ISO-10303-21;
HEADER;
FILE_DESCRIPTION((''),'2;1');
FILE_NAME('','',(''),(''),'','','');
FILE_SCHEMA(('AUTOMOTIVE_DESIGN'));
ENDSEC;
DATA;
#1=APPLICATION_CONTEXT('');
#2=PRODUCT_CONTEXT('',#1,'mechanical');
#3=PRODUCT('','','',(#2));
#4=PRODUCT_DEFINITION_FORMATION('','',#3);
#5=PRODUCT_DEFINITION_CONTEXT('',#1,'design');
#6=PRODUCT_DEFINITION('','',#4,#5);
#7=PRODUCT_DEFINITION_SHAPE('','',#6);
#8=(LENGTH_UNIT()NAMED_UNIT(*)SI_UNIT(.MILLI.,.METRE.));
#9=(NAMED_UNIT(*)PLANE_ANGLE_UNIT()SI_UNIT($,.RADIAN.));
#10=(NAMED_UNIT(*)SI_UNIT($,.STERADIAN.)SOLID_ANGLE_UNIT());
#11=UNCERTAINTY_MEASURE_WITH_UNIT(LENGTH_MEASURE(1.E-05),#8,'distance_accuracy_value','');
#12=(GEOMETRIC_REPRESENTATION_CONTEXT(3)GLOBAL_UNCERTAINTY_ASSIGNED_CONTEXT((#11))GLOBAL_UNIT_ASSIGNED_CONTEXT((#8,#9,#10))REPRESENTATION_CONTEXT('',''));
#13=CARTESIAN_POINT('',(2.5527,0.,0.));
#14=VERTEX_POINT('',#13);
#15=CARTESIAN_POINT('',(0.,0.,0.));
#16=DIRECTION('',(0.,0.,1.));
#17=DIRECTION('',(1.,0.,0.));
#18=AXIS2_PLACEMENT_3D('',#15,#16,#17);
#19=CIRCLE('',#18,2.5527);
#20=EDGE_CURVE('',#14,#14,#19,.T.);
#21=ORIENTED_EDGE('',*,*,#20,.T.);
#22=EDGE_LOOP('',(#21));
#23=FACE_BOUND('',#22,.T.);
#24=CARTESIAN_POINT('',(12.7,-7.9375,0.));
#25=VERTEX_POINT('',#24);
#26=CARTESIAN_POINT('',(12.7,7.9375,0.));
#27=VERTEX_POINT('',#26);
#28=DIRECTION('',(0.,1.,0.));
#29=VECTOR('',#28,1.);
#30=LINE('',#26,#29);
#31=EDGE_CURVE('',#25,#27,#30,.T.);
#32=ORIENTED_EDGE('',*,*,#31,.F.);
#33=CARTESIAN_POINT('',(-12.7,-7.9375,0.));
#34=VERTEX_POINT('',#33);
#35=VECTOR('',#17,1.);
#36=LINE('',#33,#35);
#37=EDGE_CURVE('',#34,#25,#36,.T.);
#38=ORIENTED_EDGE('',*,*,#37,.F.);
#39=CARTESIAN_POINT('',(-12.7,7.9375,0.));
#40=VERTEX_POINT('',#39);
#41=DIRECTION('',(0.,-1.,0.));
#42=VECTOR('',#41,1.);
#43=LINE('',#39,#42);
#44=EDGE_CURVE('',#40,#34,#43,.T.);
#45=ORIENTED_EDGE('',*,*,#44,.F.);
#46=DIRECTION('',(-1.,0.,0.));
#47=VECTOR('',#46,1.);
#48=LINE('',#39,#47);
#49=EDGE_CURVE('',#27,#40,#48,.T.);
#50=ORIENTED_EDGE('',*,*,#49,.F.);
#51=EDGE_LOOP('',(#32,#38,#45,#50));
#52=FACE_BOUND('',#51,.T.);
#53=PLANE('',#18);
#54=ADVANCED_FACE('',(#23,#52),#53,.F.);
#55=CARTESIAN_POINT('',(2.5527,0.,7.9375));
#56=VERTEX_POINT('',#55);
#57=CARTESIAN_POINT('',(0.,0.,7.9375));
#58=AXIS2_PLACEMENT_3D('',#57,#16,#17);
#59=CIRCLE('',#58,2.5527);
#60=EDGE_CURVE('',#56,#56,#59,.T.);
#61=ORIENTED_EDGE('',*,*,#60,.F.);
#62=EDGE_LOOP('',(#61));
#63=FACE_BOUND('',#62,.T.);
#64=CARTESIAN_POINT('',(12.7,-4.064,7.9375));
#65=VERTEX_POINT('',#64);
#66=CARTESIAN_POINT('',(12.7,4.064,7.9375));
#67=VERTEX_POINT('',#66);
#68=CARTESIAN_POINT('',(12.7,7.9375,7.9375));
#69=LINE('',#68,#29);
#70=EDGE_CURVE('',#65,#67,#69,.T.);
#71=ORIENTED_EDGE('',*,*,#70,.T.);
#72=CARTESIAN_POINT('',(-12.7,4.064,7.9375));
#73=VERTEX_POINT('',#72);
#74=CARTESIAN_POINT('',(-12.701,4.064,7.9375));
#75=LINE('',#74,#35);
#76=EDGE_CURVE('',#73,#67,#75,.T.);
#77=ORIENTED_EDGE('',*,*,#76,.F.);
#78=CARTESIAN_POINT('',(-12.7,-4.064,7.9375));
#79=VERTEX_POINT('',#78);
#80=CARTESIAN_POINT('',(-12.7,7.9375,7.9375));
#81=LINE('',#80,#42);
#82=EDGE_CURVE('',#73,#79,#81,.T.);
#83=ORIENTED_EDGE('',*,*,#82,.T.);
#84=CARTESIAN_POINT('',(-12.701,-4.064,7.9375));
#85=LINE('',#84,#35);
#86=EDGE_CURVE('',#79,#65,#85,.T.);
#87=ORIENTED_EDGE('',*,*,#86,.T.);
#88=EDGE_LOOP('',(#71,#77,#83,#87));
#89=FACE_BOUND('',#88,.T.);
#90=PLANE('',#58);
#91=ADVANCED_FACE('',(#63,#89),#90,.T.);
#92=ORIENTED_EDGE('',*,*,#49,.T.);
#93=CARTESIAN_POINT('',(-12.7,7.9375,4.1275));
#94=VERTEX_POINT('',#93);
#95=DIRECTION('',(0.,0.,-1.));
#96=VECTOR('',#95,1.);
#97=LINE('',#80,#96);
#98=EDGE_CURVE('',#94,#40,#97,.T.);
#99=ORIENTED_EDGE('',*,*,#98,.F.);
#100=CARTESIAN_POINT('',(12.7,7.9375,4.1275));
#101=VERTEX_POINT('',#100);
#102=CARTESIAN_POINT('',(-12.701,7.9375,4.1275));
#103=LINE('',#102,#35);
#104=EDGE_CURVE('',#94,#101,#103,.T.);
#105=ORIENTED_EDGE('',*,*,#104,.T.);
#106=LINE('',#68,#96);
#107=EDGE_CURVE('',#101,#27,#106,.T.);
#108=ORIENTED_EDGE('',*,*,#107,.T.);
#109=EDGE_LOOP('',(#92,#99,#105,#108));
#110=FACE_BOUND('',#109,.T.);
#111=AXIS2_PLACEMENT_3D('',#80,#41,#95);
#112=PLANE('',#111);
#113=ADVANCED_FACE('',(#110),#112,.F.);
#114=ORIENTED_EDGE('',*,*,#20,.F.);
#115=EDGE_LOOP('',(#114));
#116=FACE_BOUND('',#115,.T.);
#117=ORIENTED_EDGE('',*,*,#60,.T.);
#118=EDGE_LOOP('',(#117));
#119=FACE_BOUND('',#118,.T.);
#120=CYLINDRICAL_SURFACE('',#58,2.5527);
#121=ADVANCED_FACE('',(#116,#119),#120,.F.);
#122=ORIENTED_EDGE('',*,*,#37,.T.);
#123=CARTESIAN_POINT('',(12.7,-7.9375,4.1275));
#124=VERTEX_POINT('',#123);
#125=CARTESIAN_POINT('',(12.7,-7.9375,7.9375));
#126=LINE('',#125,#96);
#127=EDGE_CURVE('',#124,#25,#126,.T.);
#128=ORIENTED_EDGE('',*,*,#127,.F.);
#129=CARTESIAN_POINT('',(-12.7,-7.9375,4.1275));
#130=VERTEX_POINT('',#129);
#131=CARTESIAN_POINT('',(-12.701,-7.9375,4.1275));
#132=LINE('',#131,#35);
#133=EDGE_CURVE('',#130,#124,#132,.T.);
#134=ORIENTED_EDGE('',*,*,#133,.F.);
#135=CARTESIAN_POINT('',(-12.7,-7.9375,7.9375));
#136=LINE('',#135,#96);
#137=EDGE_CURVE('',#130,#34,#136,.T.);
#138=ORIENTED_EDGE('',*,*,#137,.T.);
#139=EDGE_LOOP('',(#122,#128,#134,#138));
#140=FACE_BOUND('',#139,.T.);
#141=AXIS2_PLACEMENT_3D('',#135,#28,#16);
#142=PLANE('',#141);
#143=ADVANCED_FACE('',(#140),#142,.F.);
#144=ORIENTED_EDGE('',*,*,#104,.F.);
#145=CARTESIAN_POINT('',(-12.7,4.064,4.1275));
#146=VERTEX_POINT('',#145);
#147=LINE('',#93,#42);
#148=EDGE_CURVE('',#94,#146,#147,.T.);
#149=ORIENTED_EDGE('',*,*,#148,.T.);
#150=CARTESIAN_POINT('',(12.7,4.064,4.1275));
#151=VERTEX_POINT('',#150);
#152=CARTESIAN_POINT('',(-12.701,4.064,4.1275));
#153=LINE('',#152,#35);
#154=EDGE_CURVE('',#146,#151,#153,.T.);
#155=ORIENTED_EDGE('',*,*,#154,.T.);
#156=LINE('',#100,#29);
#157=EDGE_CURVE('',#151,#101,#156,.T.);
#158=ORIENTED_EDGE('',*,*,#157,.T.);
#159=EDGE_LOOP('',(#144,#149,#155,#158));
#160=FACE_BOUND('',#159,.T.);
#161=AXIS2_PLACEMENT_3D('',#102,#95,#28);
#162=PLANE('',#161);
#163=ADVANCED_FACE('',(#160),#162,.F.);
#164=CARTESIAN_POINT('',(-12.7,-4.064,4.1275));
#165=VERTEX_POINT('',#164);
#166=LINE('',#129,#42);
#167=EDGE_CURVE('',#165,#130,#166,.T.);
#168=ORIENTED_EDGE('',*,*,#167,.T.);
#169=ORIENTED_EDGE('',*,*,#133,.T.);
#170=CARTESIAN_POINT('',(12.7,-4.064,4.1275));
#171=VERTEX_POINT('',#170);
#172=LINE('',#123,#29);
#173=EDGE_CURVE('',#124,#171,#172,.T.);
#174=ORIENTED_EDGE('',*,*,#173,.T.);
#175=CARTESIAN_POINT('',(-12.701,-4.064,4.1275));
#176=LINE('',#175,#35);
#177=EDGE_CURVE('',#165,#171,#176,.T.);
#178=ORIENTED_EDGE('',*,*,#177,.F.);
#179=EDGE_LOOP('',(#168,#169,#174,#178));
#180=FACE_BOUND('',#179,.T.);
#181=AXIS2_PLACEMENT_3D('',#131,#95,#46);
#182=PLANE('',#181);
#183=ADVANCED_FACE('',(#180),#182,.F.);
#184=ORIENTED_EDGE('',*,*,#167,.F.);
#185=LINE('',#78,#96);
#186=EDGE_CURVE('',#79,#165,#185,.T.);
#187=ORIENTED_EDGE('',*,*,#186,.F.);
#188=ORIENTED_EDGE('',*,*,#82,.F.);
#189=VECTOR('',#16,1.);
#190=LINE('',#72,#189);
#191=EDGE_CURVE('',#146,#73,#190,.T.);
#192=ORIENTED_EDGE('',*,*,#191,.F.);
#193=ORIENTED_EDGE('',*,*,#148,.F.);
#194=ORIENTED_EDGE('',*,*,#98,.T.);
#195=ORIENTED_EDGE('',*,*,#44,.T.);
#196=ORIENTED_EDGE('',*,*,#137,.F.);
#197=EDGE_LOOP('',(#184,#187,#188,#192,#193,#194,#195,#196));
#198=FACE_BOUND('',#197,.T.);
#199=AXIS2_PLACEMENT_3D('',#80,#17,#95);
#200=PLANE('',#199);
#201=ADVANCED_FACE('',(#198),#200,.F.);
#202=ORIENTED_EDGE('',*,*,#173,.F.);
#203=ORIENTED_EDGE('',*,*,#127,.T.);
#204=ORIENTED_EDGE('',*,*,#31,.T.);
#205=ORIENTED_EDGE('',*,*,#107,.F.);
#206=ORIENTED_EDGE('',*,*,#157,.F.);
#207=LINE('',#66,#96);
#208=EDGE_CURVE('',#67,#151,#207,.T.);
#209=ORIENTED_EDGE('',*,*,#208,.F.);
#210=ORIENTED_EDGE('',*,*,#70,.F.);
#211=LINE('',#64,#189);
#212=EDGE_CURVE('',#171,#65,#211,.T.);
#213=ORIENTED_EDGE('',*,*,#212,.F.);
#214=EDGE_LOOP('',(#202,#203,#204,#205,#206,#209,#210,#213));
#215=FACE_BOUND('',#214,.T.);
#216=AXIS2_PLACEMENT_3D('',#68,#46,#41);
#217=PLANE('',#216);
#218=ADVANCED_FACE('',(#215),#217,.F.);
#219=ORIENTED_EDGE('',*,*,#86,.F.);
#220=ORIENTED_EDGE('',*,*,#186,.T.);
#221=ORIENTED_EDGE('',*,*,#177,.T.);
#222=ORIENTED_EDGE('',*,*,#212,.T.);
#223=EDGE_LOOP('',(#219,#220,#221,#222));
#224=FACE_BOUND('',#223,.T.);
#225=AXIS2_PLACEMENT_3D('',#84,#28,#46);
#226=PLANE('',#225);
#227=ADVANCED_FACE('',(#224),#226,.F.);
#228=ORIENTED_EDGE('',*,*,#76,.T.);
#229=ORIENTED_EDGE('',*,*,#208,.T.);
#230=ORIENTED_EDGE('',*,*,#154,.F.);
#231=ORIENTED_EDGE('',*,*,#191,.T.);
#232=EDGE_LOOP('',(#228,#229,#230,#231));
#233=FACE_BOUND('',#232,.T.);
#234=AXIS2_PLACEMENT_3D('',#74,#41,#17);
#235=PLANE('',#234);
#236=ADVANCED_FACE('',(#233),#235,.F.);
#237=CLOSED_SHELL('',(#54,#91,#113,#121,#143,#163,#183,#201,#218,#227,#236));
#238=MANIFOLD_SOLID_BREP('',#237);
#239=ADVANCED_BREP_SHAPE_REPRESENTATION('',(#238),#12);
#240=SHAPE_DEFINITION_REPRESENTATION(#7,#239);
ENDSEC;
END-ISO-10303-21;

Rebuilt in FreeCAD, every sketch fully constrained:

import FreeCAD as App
import Part
import Sketcher

V = App.Vector
Q = App.Units.Quantity

doc = App.newDocument("Part")
body = doc.addObject("PartDesign::Body", "Body")

# Sketch on XY plane
sketch1 = body.newObject("Sketcher::SketchObject", "Sketch")
sketch1.AttachmentSupport = (doc.getObject("XY_Plane"), [""])
sketch1.MapMode = "FlatFace"
sketch1.addGeometry(Part.LineSegment(V(-13, 8, 0), V(-13, -8, 0)), False)
sketch1.addGeometry(Part.LineSegment(V(-13, -8, 0), V(13, -8, 0)), False)
sketch1.addGeometry(Part.LineSegment(V(13, -8, 0), V(13, 8, 0)), False)
sketch1.addGeometry(Part.LineSegment(V(13, 8, 0), V(-13, 8, 0)), False)
sketch1.addConstraint(Sketcher.Constraint("Coincident", 0, 2, 1, 1))
sketch1.addConstraint(Sketcher.Constraint("Coincident", 1, 2, 2, 1))
sketch1.addConstraint(Sketcher.Constraint("Coincident", 2, 2, 3, 1))
sketch1.addConstraint(Sketcher.Constraint("Coincident", 3, 2, 0, 1))
sketch1.addConstraint(Sketcher.Constraint("Vertical", 0))
sketch1.addConstraint(Sketcher.Constraint("Horizontal", 1))
sketch1.addConstraint(Sketcher.Constraint("Vertical", 2))
sketch1.addConstraint(Sketcher.Constraint("Horizontal", 3))
sketch1.addConstraint(Sketcher.Constraint("Symmetric", 0, 2, 2, 2, -1, 1))
sketch1.addConstraint(Sketcher.Constraint("DistanceX", 1, 1, 1, 2, Q("1 in")))
sketch1.addConstraint(Sketcher.Constraint("DistanceY", 0, 2, 0, 1, Q("0.625 in")))
pad1 = body.newObject("PartDesign::Pad", "Pad")
pad1.Profile = sketch1
pad1.Length = Q("0.3125 in")

# Sketch on YZ plane
sketch2 = body.newObject("Sketcher::SketchObject", "Sketch001")
sketch2.AttachmentSupport = (doc.getObject("YZ_Plane"), [""])
sketch2.MapMode = "FlatFace"
sketch2.AttachmentOffset = App.Placement(V(0, 0, 0.5 * 25.4), App.Rotation())
sketch2.addGeometry(Part.LineSegment(V(7.9, 7.9, 0), V(4.1, 7.9, 0)), False)
sketch2.addGeometry(Part.LineSegment(V(4.1, 7.9, 0), V(4.1, 4.1, 0)), False)
sketch2.addGeometry(Part.LineSegment(V(4.1, 4.1, 0), V(7.9, 4.1, 0)), False)
sketch2.addGeometry(Part.LineSegment(V(7.9, 4.1, 0), V(7.9, 7.9, 0)), False)
sketch2.addConstraint(Sketcher.Constraint("Coincident", 0, 2, 1, 1))
sketch2.addConstraint(Sketcher.Constraint("Coincident", 1, 2, 2, 1))
sketch2.addConstraint(Sketcher.Constraint("Coincident", 2, 2, 3, 1))
sketch2.addConstraint(Sketcher.Constraint("Coincident", 3, 2, 0, 1))
sketch2.addConstraint(Sketcher.Constraint("Horizontal", 0))
sketch2.addConstraint(Sketcher.Constraint("Vertical", 1))
sketch2.addConstraint(Sketcher.Constraint("Horizontal", 2))
sketch2.addConstraint(Sketcher.Constraint("Vertical", 3))
sketch2.addConstraint(Sketcher.Constraint("DistanceY", 1, 2, 1, 1, Q("0.15 in")))
sketch2.addConstraint(Sketcher.Constraint("DistanceX", -1, 1, 0, 2, Q("0.16 in")))
sketch2.addConstraint(Sketcher.Constraint("DistanceX", 0, 2, 0, 1, Q("0.1525 in")))
sketch2.addConstraint(Sketcher.Constraint("DistanceY", -1, 1, 0, 2, Q("0.3125 in")))
pocket1 = body.newObject("PartDesign::Pocket", "Pocket")
pocket1.Profile = sketch2
pocket1.Type = "UpToFirst"

# Sketch on YZ plane
sketch3 = body.newObject("Sketcher::SketchObject", "Sketch002")
sketch3.AttachmentSupport = (doc.getObject("YZ_Plane"), [""])
sketch3.MapMode = "FlatFace"
sketch3.AttachmentOffset = App.Placement(V(0, 0, 0.5 * 25.4), App.Rotation())
sketch3.addGeometry(Part.LineSegment(V(-4.1, 7.9, 0), V(-7.9, 7.9, 0)), False)
sketch3.addGeometry(Part.LineSegment(V(-7.9, 7.9, 0), V(-7.9, 4.1, 0)), False)
sketch3.addGeometry(Part.LineSegment(V(-7.9, 4.1, 0), V(-4.1, 4.1, 0)), False)
sketch3.addGeometry(Part.LineSegment(V(-4.1, 4.1, 0), V(-4.1, 7.9, 0)), False)
sketch3.addConstraint(Sketcher.Constraint("Coincident", 0, 2, 1, 1))
sketch3.addConstraint(Sketcher.Constraint("Coincident", 1, 2, 2, 1))
sketch3.addConstraint(Sketcher.Constraint("Coincident", 2, 2, 3, 1))
sketch3.addConstraint(Sketcher.Constraint("Coincident", 3, 2, 0, 1))
sketch3.addConstraint(Sketcher.Constraint("Horizontal", 0))
sketch3.addConstraint(Sketcher.Constraint("Vertical", 1))
sketch3.addConstraint(Sketcher.Constraint("Horizontal", 2))
sketch3.addConstraint(Sketcher.Constraint("Vertical", 3))
sketch3.addConstraint(Sketcher.Constraint("DistanceY", 1, 2, 1, 1, Q("0.15 in")))
sketch3.addConstraint(Sketcher.Constraint("DistanceX", 2, 2, -1, 1, Q("0.16 in")))
sketch3.addConstraint(Sketcher.Constraint("DistanceX", 0, 2, 0, 1, Q("0.1525 in")))
sketch3.addConstraint(Sketcher.Constraint("DistanceY", -1, 1, 0, 2, Q("0.3125 in")))
pocket2 = body.newObject("PartDesign::Pocket", "Pocket001")
pocket2.Profile = sketch3
pocket2.Type = "UpToFirst"

# Sketch on XY plane
sketch4 = body.newObject("Sketcher::SketchObject", "Sketch003")
sketch4.AttachmentSupport = (doc.getObject("XY_Plane"), [""])
sketch4.MapMode = "FlatFace"
sketch4.AttachmentOffset = App.Placement(V(0, 0, 0.3125 * 25.4), App.Rotation())
sketch4.addGeometry(Part.Circle(V(0, 0, 0), V(0, 0, 1), 2.6), False)
sketch4.addConstraint(Sketcher.Constraint("Coincident", 0, 3, -1, 1))
sketch4.addConstraint(Sketcher.Constraint("Diameter", 0, Q("0.201 in")))
doc.recompute()
hole = body.newObject("PartDesign::Hole", "Hole")
hole.Profile = sketch4
hole.ThreadType = "None"
hole.Diameter = Q("0.201 in")
hole.DepthType = "Dimension"
hole.Depth = Q("0.65 in")
hole.DrillPoint = "Angled"
hole.DrillPointAngle = 118

doc.recompute()
